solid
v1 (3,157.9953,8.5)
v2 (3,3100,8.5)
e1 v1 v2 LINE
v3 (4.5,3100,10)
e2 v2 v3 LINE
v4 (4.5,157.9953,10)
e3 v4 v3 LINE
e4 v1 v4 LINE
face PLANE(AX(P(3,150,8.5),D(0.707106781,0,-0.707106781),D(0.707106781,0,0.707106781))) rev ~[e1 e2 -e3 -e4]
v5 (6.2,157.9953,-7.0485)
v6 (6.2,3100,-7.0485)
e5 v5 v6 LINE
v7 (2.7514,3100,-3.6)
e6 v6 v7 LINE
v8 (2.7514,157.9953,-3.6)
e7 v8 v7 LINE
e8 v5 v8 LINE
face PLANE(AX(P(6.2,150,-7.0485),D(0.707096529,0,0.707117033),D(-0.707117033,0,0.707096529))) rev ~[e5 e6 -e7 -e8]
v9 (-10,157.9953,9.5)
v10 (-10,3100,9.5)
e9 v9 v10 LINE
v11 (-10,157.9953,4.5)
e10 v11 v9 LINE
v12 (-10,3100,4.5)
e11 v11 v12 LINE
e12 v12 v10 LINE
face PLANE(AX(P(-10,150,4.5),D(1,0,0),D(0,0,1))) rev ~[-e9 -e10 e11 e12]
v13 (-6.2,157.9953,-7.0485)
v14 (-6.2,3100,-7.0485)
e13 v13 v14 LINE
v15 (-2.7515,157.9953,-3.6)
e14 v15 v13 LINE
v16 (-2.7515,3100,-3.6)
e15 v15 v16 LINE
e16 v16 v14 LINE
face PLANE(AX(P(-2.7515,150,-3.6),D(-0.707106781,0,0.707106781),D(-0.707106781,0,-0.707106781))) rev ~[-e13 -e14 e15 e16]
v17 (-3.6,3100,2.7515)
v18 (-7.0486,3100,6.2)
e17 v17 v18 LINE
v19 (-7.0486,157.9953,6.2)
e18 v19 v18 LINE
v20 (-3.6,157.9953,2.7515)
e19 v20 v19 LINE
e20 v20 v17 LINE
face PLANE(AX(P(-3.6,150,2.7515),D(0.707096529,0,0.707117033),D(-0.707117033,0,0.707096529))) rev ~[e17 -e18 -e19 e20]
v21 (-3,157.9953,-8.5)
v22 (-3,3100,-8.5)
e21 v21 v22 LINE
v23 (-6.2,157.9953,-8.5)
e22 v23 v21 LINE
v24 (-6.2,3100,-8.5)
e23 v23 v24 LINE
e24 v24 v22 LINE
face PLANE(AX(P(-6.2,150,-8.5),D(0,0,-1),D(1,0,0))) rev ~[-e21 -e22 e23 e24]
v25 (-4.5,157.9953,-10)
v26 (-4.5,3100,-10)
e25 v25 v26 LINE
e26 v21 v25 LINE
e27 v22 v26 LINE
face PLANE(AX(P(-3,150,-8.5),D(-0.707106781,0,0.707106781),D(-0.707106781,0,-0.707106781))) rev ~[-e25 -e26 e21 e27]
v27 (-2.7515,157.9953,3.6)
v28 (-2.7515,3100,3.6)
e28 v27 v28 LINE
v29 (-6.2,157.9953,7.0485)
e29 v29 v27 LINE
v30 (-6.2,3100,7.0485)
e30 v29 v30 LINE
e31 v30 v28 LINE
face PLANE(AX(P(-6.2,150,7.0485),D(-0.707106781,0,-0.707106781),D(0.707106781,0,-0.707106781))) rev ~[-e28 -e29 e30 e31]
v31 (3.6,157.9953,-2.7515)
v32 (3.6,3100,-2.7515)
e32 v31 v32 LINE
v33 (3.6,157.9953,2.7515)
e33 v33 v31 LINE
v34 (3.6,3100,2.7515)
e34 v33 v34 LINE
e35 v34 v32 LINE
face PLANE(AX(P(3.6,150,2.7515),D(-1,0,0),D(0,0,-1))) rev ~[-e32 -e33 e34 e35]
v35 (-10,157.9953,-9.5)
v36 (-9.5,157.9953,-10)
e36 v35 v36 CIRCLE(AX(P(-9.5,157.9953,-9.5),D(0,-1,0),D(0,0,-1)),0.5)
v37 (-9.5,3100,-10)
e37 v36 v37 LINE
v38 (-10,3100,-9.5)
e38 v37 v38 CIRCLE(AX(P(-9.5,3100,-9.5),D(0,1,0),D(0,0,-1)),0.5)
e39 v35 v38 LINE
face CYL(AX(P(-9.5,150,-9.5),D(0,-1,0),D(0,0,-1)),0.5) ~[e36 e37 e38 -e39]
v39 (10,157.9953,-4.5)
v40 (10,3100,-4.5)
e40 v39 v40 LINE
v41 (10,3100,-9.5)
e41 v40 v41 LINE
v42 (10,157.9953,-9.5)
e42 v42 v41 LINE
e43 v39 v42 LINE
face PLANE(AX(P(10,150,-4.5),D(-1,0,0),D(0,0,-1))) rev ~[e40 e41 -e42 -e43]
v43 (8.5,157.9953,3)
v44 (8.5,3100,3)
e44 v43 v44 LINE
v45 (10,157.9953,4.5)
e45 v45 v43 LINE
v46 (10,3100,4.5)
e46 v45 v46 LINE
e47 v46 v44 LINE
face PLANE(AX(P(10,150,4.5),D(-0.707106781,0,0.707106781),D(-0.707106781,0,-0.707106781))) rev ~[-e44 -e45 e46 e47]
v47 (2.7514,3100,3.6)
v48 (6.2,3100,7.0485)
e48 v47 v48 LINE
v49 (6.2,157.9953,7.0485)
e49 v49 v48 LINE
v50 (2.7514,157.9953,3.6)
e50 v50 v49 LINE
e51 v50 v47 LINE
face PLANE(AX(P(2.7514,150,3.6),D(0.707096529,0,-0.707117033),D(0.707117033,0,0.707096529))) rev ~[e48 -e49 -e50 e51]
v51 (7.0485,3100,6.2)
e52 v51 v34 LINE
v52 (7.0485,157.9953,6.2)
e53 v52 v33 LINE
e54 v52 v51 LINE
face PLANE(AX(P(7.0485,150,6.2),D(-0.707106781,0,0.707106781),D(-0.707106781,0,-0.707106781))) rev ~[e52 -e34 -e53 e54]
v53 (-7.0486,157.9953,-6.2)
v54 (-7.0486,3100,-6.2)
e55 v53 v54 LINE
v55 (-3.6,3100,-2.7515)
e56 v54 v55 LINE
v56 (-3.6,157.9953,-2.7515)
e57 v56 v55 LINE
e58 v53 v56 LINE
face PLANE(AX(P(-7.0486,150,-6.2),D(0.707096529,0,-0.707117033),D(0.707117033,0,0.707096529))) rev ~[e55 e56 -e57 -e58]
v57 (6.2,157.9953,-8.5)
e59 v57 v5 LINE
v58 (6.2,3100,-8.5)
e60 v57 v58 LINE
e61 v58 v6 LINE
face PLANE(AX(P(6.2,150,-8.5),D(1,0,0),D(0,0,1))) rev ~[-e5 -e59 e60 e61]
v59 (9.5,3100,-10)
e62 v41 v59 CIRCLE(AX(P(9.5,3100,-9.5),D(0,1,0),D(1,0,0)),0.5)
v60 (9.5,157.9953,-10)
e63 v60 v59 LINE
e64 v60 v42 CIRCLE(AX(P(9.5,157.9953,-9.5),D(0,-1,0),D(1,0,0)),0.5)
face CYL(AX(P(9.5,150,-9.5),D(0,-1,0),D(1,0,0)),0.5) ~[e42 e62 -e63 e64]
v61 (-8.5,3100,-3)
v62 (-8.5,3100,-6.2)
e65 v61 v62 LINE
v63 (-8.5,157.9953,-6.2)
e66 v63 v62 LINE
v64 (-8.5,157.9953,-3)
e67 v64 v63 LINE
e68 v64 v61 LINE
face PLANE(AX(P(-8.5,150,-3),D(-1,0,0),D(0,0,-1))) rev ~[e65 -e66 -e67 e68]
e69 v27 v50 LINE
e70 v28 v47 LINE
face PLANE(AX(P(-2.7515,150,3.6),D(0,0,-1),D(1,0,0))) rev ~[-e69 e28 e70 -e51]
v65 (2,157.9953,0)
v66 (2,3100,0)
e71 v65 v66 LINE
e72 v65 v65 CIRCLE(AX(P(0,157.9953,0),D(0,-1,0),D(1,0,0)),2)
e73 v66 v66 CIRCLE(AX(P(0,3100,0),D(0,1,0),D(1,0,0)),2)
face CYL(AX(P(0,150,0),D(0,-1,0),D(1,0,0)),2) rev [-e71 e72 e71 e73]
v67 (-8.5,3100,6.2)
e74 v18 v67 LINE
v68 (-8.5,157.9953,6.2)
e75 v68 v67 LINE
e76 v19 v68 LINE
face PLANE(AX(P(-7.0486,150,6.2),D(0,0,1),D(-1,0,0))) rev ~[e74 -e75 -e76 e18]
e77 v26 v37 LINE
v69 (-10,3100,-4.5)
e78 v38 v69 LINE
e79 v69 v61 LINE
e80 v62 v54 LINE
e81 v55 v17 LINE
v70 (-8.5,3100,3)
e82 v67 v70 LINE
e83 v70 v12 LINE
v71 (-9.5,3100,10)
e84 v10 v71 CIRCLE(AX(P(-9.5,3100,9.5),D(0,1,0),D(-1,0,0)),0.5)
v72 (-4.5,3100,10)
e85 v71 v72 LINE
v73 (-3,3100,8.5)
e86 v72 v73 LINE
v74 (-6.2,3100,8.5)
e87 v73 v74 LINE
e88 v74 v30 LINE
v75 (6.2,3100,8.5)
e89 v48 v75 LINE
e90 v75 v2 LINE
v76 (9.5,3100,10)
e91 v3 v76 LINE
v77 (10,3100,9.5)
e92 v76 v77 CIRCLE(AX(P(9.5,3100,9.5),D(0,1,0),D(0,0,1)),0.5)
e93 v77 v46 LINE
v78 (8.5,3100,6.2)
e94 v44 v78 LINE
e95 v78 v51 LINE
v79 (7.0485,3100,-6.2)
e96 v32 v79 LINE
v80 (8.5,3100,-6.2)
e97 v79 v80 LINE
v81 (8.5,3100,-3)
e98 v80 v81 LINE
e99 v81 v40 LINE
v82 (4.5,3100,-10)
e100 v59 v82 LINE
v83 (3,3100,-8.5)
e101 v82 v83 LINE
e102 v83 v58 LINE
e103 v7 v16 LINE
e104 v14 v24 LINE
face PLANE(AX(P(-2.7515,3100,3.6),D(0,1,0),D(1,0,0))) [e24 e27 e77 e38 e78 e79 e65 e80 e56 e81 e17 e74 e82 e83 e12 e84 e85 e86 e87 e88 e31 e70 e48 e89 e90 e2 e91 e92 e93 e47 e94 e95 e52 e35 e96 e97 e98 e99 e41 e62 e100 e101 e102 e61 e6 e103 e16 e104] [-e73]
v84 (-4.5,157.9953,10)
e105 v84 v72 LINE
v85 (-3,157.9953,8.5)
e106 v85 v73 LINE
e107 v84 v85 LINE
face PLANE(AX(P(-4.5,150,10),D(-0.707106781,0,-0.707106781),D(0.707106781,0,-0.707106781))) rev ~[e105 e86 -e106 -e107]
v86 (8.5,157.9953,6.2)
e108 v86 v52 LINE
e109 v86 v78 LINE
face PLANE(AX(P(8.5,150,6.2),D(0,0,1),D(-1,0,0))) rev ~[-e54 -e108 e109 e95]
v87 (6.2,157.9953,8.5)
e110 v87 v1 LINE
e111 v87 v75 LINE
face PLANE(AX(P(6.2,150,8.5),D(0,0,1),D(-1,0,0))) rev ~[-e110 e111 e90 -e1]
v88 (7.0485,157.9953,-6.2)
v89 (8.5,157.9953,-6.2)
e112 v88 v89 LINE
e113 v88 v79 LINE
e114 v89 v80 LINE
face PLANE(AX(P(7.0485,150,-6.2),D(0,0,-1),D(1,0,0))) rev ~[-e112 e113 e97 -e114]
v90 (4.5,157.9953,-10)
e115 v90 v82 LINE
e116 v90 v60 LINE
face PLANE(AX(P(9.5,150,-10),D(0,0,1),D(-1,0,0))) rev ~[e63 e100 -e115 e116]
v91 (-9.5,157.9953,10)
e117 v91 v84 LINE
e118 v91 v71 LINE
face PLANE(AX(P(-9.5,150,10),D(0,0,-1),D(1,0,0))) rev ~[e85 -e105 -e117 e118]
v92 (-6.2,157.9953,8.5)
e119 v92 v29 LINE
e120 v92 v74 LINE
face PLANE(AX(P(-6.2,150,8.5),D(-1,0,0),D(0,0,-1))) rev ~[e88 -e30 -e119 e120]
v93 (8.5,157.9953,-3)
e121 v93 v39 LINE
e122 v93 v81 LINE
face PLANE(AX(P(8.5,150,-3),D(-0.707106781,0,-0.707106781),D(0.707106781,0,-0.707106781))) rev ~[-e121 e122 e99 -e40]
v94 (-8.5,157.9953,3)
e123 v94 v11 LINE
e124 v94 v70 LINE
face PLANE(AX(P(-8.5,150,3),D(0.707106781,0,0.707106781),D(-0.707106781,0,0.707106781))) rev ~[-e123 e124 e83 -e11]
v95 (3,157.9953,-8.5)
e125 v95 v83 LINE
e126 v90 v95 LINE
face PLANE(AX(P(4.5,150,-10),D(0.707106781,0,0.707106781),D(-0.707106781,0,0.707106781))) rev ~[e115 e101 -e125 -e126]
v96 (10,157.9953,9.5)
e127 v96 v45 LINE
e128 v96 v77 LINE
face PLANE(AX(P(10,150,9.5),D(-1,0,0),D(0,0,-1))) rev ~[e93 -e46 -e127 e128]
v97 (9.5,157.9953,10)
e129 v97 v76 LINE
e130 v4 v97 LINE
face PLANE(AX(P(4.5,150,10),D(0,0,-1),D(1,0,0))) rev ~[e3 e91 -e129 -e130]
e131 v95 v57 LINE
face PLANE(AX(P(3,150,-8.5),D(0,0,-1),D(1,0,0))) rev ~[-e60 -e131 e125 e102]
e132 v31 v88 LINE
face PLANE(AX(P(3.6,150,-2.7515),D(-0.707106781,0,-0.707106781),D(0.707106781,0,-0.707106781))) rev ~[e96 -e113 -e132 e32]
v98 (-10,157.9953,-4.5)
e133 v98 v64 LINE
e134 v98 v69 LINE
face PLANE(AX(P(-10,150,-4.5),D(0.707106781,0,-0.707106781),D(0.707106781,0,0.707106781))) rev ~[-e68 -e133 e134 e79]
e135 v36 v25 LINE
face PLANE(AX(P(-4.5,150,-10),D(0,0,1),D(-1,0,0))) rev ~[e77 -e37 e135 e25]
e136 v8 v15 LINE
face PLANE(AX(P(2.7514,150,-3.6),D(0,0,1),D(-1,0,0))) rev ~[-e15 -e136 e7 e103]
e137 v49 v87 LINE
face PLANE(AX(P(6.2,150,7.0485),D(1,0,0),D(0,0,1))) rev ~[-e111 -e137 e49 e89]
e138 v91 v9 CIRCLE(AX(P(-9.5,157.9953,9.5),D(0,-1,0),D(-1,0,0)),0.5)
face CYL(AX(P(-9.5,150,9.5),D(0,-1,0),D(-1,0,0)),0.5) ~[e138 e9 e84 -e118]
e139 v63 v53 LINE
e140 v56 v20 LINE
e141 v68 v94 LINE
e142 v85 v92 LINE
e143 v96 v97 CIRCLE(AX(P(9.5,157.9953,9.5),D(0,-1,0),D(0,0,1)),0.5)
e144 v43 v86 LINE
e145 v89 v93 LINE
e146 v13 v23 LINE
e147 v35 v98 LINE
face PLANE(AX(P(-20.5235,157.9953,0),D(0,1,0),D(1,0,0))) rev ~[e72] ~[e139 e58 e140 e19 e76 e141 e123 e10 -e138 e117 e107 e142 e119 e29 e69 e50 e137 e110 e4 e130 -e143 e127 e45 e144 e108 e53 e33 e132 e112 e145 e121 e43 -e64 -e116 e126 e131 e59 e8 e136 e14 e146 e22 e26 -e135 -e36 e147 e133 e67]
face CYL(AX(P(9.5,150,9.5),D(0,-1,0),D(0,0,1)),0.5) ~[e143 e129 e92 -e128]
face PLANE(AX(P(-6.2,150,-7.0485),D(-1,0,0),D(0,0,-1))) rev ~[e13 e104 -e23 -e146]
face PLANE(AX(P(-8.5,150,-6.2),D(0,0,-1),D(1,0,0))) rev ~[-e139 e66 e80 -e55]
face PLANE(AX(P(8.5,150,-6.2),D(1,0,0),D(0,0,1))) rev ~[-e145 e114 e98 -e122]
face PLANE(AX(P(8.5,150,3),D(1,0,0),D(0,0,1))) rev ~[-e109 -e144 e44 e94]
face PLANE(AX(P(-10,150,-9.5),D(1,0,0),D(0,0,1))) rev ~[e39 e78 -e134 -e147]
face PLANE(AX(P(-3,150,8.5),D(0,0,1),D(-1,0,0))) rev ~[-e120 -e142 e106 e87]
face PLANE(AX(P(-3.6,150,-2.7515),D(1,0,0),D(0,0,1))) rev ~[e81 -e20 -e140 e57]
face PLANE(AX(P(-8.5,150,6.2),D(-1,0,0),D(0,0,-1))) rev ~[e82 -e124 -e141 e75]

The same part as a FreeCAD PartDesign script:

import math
import FreeCAD as App
import Part
import Sketcher
from FreeCAD import Vector
Q = App.Units.Quantity


def add_polygon(sketch, points):
    """Adds a closed chain of lines whose ends are joined by coincident constraints."""
    first, n = sketch.GeometryCount, len(points)
    for a, b in zip(points, points[1:] + points[:1]):
        sketch.addGeometry(Part.LineSegment(App.Vector(*a, 0), App.Vector(*b, 0)), False)
    for i in range(n):
        sketch.addConstraint(Sketcher.Constraint("Coincident", first + i, 2, first + (i + 1) % n, 1))

doc = App.newDocument("Part")
body = doc.addObject("PartDesign::Body", "Body")

sketch1 = body.newObject("Sketcher::SketchObject", "Sketch")
sketch1.AttachmentSupport = (doc.getObject("XZ_Plane"), [""])
sketch1.MapMode = "FlatFace"
sketch1.AttachmentOffset = App.Placement(Vector(0, 0, -150), App.Rotation())
sketch1.addGeometry([
    Part.LineSegment(Vector(-4.5, -10, 0), Vector(-9.5, -10, 0)),
    Part.ArcOfCircle(Part.Circle(Vector(-9.5, -9.5, 0), Vector(0, 0, 1), 0.5), math.radians(180), math.radians(270)),
    Part.LineSegment(Vector(-10, -9.5, 0), Vector(-10, -4.5, 0)),
    Part.LineSegment(Vector(-10, -4.5, 0), Vector(-8.5, -3, 0)),
    Part.LineSegment(Vector(-8.5, -3, 0), Vector(-8.5, -6.2, 0)),
    Part.LineSegment(Vector(-8.5, -6.2, 0), Vector(-7, -6.2, 0)),
    Part.LineSegment(Vector(-7, -6.2, 0), Vector(-3.6, -2.8, 0)),
    Part.LineSegment(Vector(-3.6, -2.8, 0), Vector(-3.6, 2.8, 0)),
    Part.LineSegment(Vector(-3.6, 2.8, 0), Vector(-7, 6.2, 0)),
    Part.LineSegment(Vector(-7, 6.2, 0), Vector(-8.5, 6.2, 0)),
    Part.LineSegment(Vector(-8.5, 6.2, 0), Vector(-8.5, 3, 0)),
    Part.LineSegment(Vector(-8.5, 3, 0), Vector(-10, 4.5, 0)),
    Part.LineSegment(Vector(-10, 4.5, 0), Vector(-10, 9.5, 0)),
    Part.ArcOfCircle(Part.Circle(Vector(-9.5, 9.5, 0), Vector(0, 0, 1), 0.5), math.radians(90), math.radians(180)),
    Part.LineSegment(Vector(-9.5, 10, 0), Vector(-4.5, 10, 0)),
    Part.LineSegment(Vector(-4.5, 10, 0), Vector(-3, 8.5, 0)),
    Part.LineSegment(Vector(-3, 8.5, 0), Vector(-6.2, 8.5, 0)),
    Part.LineSegment(Vector(-6.2, 8.5, 0), Vector(-6.2, 7, 0)),
    Part.LineSegment(Vector(-6.2, 7, 0), Vector(-2.8, 3.6, 0)),
    Part.LineSegment(Vector(-2.8, 3.6, 0), Vector(2.8, 3.6, 0)),
    Part.LineSegment(Vector(2.8, 3.6, 0), Vector(6.2, 7, 0)),
    Part.LineSegment(Vector(6.2, 7, 0), Vector(6.2, 8.5, 0)),
    Part.LineSegment(Vector(6.2, 8.5, 0), Vector(3, 8.5, 0)),
    Part.LineSegment(Vector(3, 8.5, 0), Vector(4.5, 10, 0)),
    Part.LineSegment(Vector(4.5, 10, 0), Vector(9.5, 10, 0)),
    Part.ArcOfCircle(Part.Circle(Vector(9.5, 9.5, 0), Vector(0, 0, 1), 0.5), math.radians(0), math.radians(90)),
    Part.LineSegment(Vector(10, 9.5, 0), Vector(10, 4.5, 0)),
    Part.LineSegment(Vector(10, 4.5, 0), Vector(8.5, 3, 0)),
    Part.LineSegment(Vector(8.5, 3, 0), Vector(8.5, 6.2, 0)),
    Part.LineSegment(Vector(8.5, 6.2, 0), Vector(7, 6.2, 0)),
    Part.LineSegment(Vector(7, 6.2, 0), Vector(3.6, 2.8, 0)),
    Part.LineSegment(Vector(3.6, 2.8, 0), Vector(3.6, -2.8, 0)),
    Part.LineSegment(Vector(3.6, -2.8, 0), Vector(7, -6.2, 0)),
    Part.LineSegment(Vector(7, -6.2, 0), Vector(8.5, -6.2, 0)),
    Part.LineSegment(Vector(8.5, -6.2, 0), Vector(8.5, -3, 0)),
    Part.LineSegment(Vector(8.5, -3, 0), Vector(10, -4.5, 0)),
    Part.LineSegment(Vector(10, -4.5, 0), Vector(10, -9.5, 0)),
    Part.ArcOfCircle(Part.Circle(Vector(9.5, -9.5, 0), Vector(0, 0, 1), 0.5), math.radians(-90), math.radians(0)),
    Part.LineSegment(Vector(9.5, -10, 0), Vector(4.5, -10, 0)),
    Part.LineSegment(Vector(4.5, -10, 0), Vector(3, -8.5, 0)),
    Part.LineSegment(Vector(3, -8.5, 0), Vector(6.2, -8.5, 0)),
    Part.LineSegment(Vector(6.2, -8.5, 0), Vector(6.2, -7, 0)),
    Part.LineSegment(Vector(6.2, -7, 0), Vector(2.8, -3.6, 0)),
    Part.LineSegment(Vector(2.8, -3.6, 0), Vector(-2.8, -3.6, 0)),
    Part.LineSegment(Vector(-2.8, -3.6, 0), Vector(-6.2, -7, 0)),
    Part.LineSegment(Vector(-6.2, -7, 0), Vector(-6.2, -8.5, 0)),
    Part.LineSegment(Vector(-6.2, -8.5, 0), Vector(-3, -8.5, 0)),
    Part.LineSegment(Vector(-3, -8.5, 0), Vector(-4.5, -10, 0)),
    Part.Circle(Vector(0, 0, 0), Vector(0, 0, 1), 2),
], False)
sketch1.addConstraint([
    Sketcher.Constraint("Tangent", 0, 2, 1, 2),
    Sketcher.Constraint("Tangent", 1, 1, 2, 1),
    Sketcher.Constraint("Coincident", 2, 2, 3, 1),
    Sketcher.Constraint("Coincident", 3, 2, 4, 1),
    Sketcher.Constraint("Coincident", 4, 2, 5, 1),
    Sketcher.Constraint("Coincident", 5, 2, 6, 1),
    Sketcher.Constraint("Coincident", 6, 2, 7, 1),
    Sketcher.Constraint("Coincident", 7, 2, 8, 1),
    Sketcher.Constraint("Coincident", 8, 2, 9, 1),
    Sketcher.Constraint("Coincident", 9, 2, 10, 1),
    Sketcher.Constraint("Coincident", 10, 2, 11, 1),
    Sketcher.Constraint("Coincident", 11, 2, 12, 1),
    Sketcher.Constraint("Tangent", 12, 2, 13, 2),
    Sketcher.Constraint("Tangent", 13, 1, 14, 1),
    Sketcher.Constraint("Coincident", 14, 2, 15, 1),
    Sketcher.Constraint("Coincident", 15, 2, 16, 1),
    Sketcher.Constraint("Coincident", 16, 2, 17, 1),
    Sketcher.Constraint("Coincident", 17, 2, 18, 1),
    Sketcher.Constraint("Coincident", 18, 2, 19, 1),
    Sketcher.Constraint("Coincident", 19, 2, 20, 1),
    Sketcher.Constraint("Coincident", 20, 2, 21, 1),
    Sketcher.Constraint("Coincident", 21, 2, 22, 1),
    Sketcher.Constraint("Coincident", 22, 2, 23, 1),
    Sketcher.Constraint("Coincident", 23, 2, 24, 1),
    Sketcher.Constraint("Tangent", 24, 2, 25, 2),
    Sketcher.Constraint("Tangent", 25, 1, 26, 1),
    Sketcher.Constraint("Coincident", 26, 2, 27, 1),
    Sketcher.Constraint("Coincident", 27, 2, 28, 1),
    Sketcher.Constraint("Coincident", 28, 2, 29, 1),
    Sketcher.Constraint("Coincident", 29, 2, 30, 1),
    Sketcher.Constraint("Coincident", 30, 2, 31, 1),
    Sketcher.Constraint("Coincident", 31, 2, 32, 1),
    Sketcher.Constraint("Coincident", 32, 2, 33, 1),
    Sketcher.Constraint("Coincident", 33, 2, 34, 1),
    Sketcher.Constraint("Coincident", 34, 2, 35, 1),
    Sketcher.Constraint("Coincident", 35, 2, 36, 1),
    Sketcher.Constraint("Tangent", 36, 2, 37, 2),
    Sketcher.Constraint("Tangent", 37, 1, 38, 1),
    Sketcher.Constraint("Coincident", 38, 2, 39, 1),
    Sketcher.Constraint("Coincident", 39, 2, 40, 1),
    Sketcher.Constraint("Coincident", 40, 2, 41, 1),
    Sketcher.Constraint("Coincident", 41, 2, 42, 1),
    Sketcher.Constraint("Coincident", 42, 2, 43, 1),
    Sketcher.Constraint("Coincident", 43, 2, 44, 1),
    Sketcher.Constraint("Coincident", 44, 2, 45, 1),
    Sketcher.Constraint("Coincident", 45, 2, 46, 1),
    Sketcher.Constraint("Coincident", 46, 2, 47, 1),
    Sketcher.Constraint("Coincident", 47, 2, 0, 1),
    Sketcher.Constraint("Horizontal", 0),
    Sketcher.Constraint("Vertical", 2),
    Sketcher.Constraint("Vertical", 4),
    Sketcher.Constraint("Horizontal", 5),
    Sketcher.Constraint("Vertical", 7),
    Sketcher.Constraint("Horizontal", 9),
    Sketcher.Constraint("Vertical", 10),
    Sketcher.Constraint("Vertical", 12),
    Sketcher.Constraint("Horizontal", 14),
    Sketcher.Constraint("Horizontal", 16),
    Sketcher.Constraint("Vertical", 17),
    Sketcher.Constraint("Horizontal", 19),
    Sketcher.Constraint("Vertical", 21),
    Sketcher.Constraint("Horizontal", 22),
    Sketcher.Constraint("Horizontal", 24),
    Sketcher.Constraint("Vertical", 26),
    Sketcher.Constraint("Vertical", 28),
    Sketcher.Constraint("Horizontal", 29),
    Sketcher.Constraint("Vertical", 31),
    Sketcher.Constraint("Horizontal", 33),
    Sketcher.Constraint("Vertical", 34),
    Sketcher.Constraint("Vertical", 36),
    Sketcher.Constraint("Horizontal", 38),
    Sketcher.Constraint("Horizontal", 40),
    Sketcher.Constraint("Vertical", 41),
    Sketcher.Constraint("Horizontal", 43),
    Sketcher.Constraint("Vertical", 45),
    Sketcher.Constraint("Horizontal", 46),
    Sketcher.Constraint("Coincident", 48, 3, -1, 1),
    Sketcher.Constraint("Equal", 1, 13),
    Sketcher.Constraint("Equal", 13, 25),
    Sketcher.Constraint("Equal", 25, 37),
    Sketcher.Constraint("Symmetric", 1, 3, 25, 3, -1, 1),
    Sketcher.Constraint("Symmetric", 13, 3, 37, 3, -1, 1),
    Sketcher.Constraint("Symmetric", 3, 2, 27, 2, -1, 1),
    Sketcher.Constraint("Symmetric", 5, 2, 29, 2, -1, 1),
    Sketcher.Constraint("Symmetric", 6, 2, 30, 2, -1, 1),
    Sketcher.Constraint("Symmetric", 8, 2, 32, 2, -1, 1),
    Sketcher.Constraint("Symmetric", 10, 2, 34, 2, -1, 1),
    Sketcher.Constraint("Symmetric", 15, 2, 39, 2, -1, 1),
    Sketcher.Constraint("Symmetric", 17, 2, 41, 2, -1, 1),
    Sketcher.Constraint("Symmetric", 18, 2, 42, 2, -1, 1),
    Sketcher.Constraint("Symmetric", 20, 2, 44, 2, -1, 1),
    Sketcher.Constraint("Symmetric", 22, 2, 46, 2, -1, 1),
    Sketcher.Constraint("Symmetric", 13, 3, 25, 3, -2),
    Sketcher.Constraint("Symmetric", 17, 2, 20, 2, -2),
    Sketcher.Constraint("Symmetric", 15, 2, 22, 2, -2),
    Sketcher.Constraint("Symmetric", 10, 2, 27, 2, -2),
    Sketcher.Constraint("Symmetric", 8, 2, 29, 2, -2),
    Sketcher.Constraint("Parallel", 3, 6),
    Sketcher.Constraint("Perpendicular", 6, 8),
    Sketcher.Constraint("Parallel", 8, 11),
    Sketcher.Constraint("Parallel", 11, 15),
    Sketcher.Constraint("Parallel", 15, 18),
    Sketcher.Constraint("Perpendicular", 18, 20),
    Sketcher.Constraint("Parallel", 20, 23),
    Sketcher.Constraint("Parallel", 23, 27),
    Sketcher.Constraint("Perpendicular", 30, 32),
    Sketcher.Constraint("Parallel", 32, 35),
    Sketcher.Constraint("Parallel", 35, 39),
    Sketcher.Constraint("Perpendicular", 42, 44),
    Sketcher.Constraint("Parallel", 44, 47),
    Sketcher.Constraint("Horizontal", 11, 2, 26, 2),
    Sketcher.Constraint("Equal", 38, 2),
    Sketcher.Constraint("Equal", 46, 4),
    Sketcher.Constraint("Equal", 43, 7),
    Sketcher.Constraint("Equal", 33, 17),
    Sketcher.Constraint("Equal", 11, 15),
    Sketcher.Constraint("Equal", 8, 18),
    Sketcher.Constraint("Diameter", 48, Q("4 mm")),
    Sketcher.Constraint("Radius", 1, Q("0.5 mm")),
    Sketcher.Constraint("DistanceX", 0, 2, 0, 1, Q("5 mm")),
    Sketcher.Constraint("DistanceX", 16, 2, 16, 1, Q("3.2 mm")),
    Sketcher.Constraint("DistanceY", 0, 2, -1, 1, Q("10 mm")),
    Sketcher.Constraint("DistanceY", 3, 2, -1, 1, Q("3 mm")),
    Sketcher.Constraint("DistanceX", 6, 2, -1, 1, Q("3.6 mm")),
    Sketcher.Constraint("DistanceX", 19, 1, 19, 2, Q("5.503 mm")),
])
pad1 = body.newObject("PartDesign::Pad", "Pad")
pad1.Profile = sketch1
pad1.Length = 2950
pad1.Reversed = True

sketch2 = body.newObject("Sketcher::SketchObject", "Sketch001")
sketch2.AttachmentSupport = (doc.getObject("XY_Plane"), [""])
sketch2.MapMode = "FlatFace"
add_polygon(sketch2, [(19, 158), (-21, 158), (-21, 150), (19, 150)])
sketch2.addConstraint([
    Sketcher.Constraint("Horizontal", 0),
    Sketcher.Constraint("Vertical", 1),
    Sketcher.Constraint("Horizontal", 2),
    Sketcher.Constraint("Vertical", 3),
    Sketcher.Constraint("DistanceX", 0, 2, 0, 1, Q("40 mm")),
    Sketcher.Constraint("DistanceY", 1, 2, 1, 1, Q("8 mm")),
    Sketcher.Constraint("DistanceX", 0, 2, -1, 1, Q("20.5235 mm")),
    Sketcher.Constraint("DistanceY", -1, 1, 0, 2, Q("157.9953 mm")),
])
pocket1 = body.newObject("PartDesign::Pocket", "Pocket")
pocket1.Profile = sketch2
pocket1.Length = 20
pocket1.Midplane = True

doc.recompute()
